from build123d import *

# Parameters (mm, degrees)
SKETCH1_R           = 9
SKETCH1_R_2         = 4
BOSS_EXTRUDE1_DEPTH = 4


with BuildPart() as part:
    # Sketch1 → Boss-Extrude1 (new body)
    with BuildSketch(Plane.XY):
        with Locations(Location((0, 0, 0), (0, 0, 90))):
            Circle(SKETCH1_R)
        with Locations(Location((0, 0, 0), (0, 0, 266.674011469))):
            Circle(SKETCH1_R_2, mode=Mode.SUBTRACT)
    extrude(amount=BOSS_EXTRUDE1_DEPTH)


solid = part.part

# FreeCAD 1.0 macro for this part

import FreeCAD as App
import Part
import Sketcher

V = App.Vector

doc = App.newDocument("Part")
params = doc.addObject("Spreadsheet::Sheet", "Params")
for row, (alias, value) in enumerate([
    ("sketch1_diameter", "18 mm"),
    ("sketch1_diameter2", "8 mm"),
    ("pad1_length", "4 mm"),
], start=1):
    params.set(f"A{row}", alias)
    params.set(f"B{row}", "=" + value)
    params.setAlias(f"B{row}", alias)

body = doc.addObject("PartDesign::Body", "Body")

sketch1 = body.newObject("Sketcher::SketchObject", "Sketch")
sketch1.AttachmentSupport = (doc.getObject("XY_Plane"), [""])
sketch1.MapMode = "FlatFace"
sketch1.addGeometry(Part.Circle(V(0, 0, 0), V(0, 0, 1), 9), False)
sketch1.addGeometry(Part.Circle(V(0, 0, 0), V(0, 0, 1), 4), False)
sketch1.addConstraint(Sketcher.Constraint("Coincident", 0, 3, -1, 1))
sketch1.addConstraint(Sketcher.Constraint("Coincident", 1, 3, -1, 1))
sketch1.addConstraint(Sketcher.Constraint("Diameter", 0, 18.0))
sketch1.addConstraint(Sketcher.Constraint("Diameter", 1, 8.0))
sketch1.setExpression("Constraints[2]", "Params.sketch1_diameter")
sketch1.setExpression("Constraints[3]", "Params.sketch1_diameter2")
pad1 = body.newObject("PartDesign::Pad", "Pad")
pad1.Profile = sketch1
pad1.setExpression("Length", "Params.pad1_length")

doc.recompute()
